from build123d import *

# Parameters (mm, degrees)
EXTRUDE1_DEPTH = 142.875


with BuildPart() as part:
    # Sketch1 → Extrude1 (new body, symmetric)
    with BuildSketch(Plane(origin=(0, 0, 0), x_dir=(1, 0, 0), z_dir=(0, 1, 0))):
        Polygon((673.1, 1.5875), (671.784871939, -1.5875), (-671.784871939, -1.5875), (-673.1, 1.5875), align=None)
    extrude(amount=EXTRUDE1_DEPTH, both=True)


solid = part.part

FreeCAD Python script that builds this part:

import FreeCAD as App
import Part
import Sketcher

V = App.Vector
Q = App.Units.Quantity


def add_polygon(sketch, points):
    """Adds a closed chain of lines whose ends are joined by coincident constraints."""
    first, n = sketch.GeometryCount, len(points)
    for a, b in zip(points, points[1:] + points[:1]):
        sketch.addGeometry(Part.LineSegment(App.Vector(*a, 0), App.Vector(*b, 0)), False)
    for i in range(n):
        sketch.addConstraint(Sketcher.Constraint("Coincident", first + i, 2, first + (i + 1) % n, 1))

doc = App.newDocument("Part")
body = doc.addObject("PartDesign::Body", "Body")

# Sketch on XZ plane
sketch1 = body.newObject("Sketcher::SketchObject", "Sketch")
sketch1.AttachmentSupport = (doc.getObject("XZ_Plane"), [""])
sketch1.MapMode = "FlatFace"
add_polygon(sketch1, [(671.8, 1.6), (673.1, -1.6), (-673.1, -1.6), (-671.8, 1.6)])  # lines 0-3
sketch1.addConstraint([
    Sketcher.Constraint("Horizontal", 1),
    Sketcher.Constraint("Horizontal", 3),
    Sketcher.Constraint("Equal", 0, 2),
    Sketcher.Constraint("DistanceX", 1, 2, 1, 1, Q("53 in")),
    Sketcher.Constraint("DistanceX", -1, 1, 0, 2, Q("26.5 in")),
    Sketcher.Constraint("Angle", 0, Q("-67.5 deg")),
    Sketcher.Constraint("DistanceY", 0, 2, -1, 1, Q("0.0625 in")),
    Sketcher.Constraint("DistanceY", -1, 1, 2, 2, Q("0.0625 in")),
])
pad1 = body.newObject("PartDesign::Pad", "Pad")
pad1.Profile = sketch1
pad1.Length = Q("11.25 in")
pad1.Midplane = True

doc.recompute()
